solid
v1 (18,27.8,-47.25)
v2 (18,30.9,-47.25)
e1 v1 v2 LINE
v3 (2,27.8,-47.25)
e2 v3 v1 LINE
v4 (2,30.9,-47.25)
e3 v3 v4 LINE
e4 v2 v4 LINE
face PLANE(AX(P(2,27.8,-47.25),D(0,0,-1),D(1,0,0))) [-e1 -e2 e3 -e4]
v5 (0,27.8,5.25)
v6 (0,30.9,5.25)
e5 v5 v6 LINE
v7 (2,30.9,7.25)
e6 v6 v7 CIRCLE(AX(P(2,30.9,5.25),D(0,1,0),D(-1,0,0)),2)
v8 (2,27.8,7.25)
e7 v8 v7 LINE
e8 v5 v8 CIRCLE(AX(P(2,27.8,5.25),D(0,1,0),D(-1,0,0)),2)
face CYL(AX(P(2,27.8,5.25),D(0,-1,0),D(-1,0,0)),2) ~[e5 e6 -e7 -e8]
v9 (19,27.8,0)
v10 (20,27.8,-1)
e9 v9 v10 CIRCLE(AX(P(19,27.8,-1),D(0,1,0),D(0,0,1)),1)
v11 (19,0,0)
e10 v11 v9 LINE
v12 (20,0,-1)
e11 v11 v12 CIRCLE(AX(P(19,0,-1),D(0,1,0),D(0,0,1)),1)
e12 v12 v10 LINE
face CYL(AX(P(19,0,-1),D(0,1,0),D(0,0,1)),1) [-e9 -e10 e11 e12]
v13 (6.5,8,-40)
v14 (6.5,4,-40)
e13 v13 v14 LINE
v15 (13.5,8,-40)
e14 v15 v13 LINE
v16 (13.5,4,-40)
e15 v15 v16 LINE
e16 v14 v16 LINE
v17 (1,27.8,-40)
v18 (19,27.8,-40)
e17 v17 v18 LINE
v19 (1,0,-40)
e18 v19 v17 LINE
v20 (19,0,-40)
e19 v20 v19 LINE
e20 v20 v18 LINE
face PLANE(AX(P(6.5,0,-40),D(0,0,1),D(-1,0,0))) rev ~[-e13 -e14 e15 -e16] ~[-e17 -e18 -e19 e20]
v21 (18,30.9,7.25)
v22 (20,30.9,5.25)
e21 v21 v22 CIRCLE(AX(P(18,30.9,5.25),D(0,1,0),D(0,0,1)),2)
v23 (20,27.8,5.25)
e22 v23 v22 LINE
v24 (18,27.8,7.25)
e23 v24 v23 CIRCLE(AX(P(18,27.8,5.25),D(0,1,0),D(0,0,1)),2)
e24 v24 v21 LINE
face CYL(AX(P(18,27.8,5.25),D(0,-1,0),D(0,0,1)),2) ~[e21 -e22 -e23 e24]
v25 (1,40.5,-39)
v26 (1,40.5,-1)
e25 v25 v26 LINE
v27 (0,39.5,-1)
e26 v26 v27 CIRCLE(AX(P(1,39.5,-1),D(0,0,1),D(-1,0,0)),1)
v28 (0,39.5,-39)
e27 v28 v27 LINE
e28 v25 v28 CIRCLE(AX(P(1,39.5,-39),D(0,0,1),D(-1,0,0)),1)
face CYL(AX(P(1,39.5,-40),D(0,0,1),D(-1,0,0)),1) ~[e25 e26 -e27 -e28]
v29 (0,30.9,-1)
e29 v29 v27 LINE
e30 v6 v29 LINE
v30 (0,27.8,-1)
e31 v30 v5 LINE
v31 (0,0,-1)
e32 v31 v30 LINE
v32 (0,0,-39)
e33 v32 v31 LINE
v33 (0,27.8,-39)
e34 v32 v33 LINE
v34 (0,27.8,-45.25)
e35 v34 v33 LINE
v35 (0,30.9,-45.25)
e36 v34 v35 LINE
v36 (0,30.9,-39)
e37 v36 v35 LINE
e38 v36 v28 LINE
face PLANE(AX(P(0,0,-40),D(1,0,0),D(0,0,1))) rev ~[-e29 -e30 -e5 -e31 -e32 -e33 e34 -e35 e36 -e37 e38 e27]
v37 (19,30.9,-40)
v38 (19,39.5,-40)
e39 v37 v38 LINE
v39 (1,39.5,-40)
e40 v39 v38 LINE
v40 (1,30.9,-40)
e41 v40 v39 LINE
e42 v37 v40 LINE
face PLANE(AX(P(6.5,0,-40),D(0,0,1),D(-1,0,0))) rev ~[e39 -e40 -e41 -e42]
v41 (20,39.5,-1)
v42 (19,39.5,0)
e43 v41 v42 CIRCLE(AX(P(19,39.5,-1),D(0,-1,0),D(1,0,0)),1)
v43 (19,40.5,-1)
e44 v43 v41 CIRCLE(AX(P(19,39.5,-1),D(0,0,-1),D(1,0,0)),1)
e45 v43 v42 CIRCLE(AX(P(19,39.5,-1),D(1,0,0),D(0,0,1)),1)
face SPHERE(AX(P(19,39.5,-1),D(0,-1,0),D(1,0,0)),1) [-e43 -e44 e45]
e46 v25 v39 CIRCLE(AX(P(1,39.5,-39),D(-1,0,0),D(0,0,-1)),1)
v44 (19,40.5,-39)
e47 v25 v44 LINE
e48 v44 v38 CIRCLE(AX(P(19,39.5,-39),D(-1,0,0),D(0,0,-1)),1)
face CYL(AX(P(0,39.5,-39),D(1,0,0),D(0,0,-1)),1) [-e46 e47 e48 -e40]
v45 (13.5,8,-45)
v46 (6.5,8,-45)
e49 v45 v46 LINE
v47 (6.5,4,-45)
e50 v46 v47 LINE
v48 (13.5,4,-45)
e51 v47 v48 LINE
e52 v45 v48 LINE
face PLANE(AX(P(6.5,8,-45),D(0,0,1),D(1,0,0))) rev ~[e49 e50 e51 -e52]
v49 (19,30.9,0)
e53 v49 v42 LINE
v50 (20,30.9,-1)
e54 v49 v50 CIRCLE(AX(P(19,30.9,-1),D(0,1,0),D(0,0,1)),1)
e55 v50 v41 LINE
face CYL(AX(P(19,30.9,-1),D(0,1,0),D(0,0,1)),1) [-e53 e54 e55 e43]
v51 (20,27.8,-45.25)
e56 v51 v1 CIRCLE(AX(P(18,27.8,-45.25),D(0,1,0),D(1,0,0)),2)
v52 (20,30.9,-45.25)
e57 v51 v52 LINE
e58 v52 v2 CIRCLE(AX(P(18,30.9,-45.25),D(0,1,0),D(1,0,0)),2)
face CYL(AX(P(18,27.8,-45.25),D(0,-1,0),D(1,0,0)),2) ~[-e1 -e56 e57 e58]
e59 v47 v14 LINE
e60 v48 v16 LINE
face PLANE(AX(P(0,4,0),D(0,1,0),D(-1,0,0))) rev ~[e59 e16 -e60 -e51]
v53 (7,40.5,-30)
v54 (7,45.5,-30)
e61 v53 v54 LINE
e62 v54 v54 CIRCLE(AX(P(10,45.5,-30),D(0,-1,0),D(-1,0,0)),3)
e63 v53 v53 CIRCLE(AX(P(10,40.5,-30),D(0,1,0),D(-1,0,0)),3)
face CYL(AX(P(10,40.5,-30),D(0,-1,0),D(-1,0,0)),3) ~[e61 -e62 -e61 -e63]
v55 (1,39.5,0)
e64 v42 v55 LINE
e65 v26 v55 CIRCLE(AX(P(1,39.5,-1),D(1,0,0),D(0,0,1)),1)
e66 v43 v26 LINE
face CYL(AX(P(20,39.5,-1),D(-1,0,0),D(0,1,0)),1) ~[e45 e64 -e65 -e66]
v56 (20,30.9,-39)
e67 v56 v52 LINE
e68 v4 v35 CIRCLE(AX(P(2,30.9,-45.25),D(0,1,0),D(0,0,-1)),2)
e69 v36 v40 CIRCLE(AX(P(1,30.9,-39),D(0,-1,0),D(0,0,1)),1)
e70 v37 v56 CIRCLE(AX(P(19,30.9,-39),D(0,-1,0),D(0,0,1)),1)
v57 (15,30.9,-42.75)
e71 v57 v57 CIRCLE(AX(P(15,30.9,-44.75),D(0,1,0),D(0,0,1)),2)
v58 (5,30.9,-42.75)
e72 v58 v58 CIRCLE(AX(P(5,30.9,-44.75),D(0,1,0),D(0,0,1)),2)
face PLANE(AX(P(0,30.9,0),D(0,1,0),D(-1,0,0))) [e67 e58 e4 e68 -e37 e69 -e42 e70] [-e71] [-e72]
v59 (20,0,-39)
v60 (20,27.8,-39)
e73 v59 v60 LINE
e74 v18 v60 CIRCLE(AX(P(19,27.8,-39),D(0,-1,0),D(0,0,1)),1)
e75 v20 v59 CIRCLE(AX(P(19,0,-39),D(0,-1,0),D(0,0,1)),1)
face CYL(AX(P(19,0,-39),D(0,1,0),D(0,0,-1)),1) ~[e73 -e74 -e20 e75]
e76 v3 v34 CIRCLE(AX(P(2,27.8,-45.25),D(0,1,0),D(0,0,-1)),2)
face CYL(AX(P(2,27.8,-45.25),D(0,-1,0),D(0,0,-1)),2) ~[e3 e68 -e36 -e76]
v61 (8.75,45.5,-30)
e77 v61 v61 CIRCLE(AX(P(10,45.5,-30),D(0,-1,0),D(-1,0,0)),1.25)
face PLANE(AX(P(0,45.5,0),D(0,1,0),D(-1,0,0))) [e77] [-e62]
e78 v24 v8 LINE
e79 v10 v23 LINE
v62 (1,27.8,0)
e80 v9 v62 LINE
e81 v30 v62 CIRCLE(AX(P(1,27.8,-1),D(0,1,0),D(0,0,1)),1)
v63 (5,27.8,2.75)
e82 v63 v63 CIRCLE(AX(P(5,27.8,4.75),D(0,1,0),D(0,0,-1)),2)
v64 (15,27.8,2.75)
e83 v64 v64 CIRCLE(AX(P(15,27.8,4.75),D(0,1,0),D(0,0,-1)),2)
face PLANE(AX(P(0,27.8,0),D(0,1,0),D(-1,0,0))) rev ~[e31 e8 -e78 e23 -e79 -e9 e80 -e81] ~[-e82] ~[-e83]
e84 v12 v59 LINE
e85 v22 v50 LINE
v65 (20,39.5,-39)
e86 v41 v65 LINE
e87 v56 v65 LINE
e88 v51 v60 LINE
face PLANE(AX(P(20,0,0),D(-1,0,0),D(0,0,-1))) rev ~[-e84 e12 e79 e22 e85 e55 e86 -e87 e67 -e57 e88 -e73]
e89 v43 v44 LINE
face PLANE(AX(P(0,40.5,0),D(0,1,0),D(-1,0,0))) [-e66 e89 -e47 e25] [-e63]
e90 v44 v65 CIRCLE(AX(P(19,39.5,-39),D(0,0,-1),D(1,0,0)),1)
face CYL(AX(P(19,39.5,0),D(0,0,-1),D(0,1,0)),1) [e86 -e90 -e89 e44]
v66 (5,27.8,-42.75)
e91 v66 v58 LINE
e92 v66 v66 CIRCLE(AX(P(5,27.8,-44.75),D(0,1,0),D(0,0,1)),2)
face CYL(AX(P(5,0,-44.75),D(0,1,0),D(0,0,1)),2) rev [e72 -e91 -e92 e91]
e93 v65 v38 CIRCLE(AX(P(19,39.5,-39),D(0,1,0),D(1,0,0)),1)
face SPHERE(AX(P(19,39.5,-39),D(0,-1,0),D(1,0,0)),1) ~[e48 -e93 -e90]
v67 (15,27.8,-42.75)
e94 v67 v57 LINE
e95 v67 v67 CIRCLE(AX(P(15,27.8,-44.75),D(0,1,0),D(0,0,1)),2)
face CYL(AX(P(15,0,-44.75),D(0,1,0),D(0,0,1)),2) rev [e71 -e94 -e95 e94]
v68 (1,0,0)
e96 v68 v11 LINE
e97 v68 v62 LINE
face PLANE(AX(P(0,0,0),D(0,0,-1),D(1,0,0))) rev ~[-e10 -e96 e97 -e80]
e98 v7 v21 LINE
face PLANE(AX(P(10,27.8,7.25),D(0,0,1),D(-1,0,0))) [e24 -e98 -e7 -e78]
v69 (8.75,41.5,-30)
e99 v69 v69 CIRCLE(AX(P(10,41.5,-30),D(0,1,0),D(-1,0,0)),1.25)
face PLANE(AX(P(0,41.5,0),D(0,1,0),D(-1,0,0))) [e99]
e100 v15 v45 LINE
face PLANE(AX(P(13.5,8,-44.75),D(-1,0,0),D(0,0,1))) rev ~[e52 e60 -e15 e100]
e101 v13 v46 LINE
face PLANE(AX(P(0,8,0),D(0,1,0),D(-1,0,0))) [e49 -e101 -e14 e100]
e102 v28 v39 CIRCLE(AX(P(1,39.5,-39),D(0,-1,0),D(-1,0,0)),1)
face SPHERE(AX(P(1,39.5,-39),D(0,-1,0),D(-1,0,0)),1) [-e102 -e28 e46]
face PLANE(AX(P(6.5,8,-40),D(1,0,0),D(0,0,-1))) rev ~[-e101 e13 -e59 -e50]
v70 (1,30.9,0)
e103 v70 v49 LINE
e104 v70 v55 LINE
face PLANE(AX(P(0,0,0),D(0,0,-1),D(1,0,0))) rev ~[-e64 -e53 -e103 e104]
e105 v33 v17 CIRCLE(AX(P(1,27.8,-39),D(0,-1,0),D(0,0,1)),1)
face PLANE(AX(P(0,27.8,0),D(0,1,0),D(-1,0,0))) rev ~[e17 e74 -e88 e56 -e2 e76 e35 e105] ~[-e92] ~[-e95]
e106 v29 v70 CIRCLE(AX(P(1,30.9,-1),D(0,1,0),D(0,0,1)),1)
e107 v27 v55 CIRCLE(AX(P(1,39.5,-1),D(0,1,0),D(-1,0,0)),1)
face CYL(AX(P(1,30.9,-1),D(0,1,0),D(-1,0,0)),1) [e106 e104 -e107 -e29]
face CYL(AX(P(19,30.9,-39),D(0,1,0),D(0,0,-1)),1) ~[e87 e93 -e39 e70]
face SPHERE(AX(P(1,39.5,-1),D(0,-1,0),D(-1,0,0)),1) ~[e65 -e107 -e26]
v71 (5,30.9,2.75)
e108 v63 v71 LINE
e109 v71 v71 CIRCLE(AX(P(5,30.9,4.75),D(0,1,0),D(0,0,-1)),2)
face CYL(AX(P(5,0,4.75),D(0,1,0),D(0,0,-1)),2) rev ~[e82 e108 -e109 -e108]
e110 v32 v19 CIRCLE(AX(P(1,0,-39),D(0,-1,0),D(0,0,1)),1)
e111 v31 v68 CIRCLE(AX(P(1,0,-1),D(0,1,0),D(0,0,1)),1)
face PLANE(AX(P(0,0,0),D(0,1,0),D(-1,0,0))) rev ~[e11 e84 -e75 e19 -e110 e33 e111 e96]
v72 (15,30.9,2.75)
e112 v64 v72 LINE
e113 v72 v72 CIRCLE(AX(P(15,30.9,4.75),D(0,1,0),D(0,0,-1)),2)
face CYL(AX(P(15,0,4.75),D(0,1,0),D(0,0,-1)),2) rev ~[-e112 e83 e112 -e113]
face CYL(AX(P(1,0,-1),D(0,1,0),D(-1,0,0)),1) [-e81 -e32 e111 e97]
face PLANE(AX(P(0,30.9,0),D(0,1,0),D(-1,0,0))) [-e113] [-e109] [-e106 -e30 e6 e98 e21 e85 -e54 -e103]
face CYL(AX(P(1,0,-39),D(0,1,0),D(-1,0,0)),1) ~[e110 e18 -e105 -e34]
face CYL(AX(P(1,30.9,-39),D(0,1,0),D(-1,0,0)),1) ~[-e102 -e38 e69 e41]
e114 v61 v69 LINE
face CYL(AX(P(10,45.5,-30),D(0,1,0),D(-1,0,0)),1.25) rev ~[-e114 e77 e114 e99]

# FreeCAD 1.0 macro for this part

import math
import FreeCAD as App
import Part
import Sketcher
from FreeCAD import Vector
Q = App.Units.Quantity


def edges_at(feature, points):
    """Names of the edges that pass closest to the given points."""
    edges = feature.Shape.Edges
    near = lambda p: min(range(len(edges)), key=lambda i: edges[i].distToShape(Part.Vertex(*p))[0])
    return sorted({f"Edge{near(p) + 1}" for p in points})

doc = App.newDocument("Part")
body = doc.addObject("PartDesign::Body", "Body")

# Sketch on XZ plane
sketch1 = doc.addObject("Sketcher::SketchObject", "Sketch")
body.addObject(sketch1)
sketch1.AttachmentSupport = (doc.XZ_Plane, [""])
sketch1.MapMode = "FlatFace"
sketch1.addGeometry(Part.LineSegment(Vector(0, -40, 0), Vector(0, 0, 0)), False)
sketch1.addGeometry(Part.LineSegment(Vector(0, 0, 0), Vector(20, 0, 0)), False)
sketch1.addGeometry(Part.LineSegment(Vector(20, 0, 0), Vector(20, -40, 0)), False)
sketch1.addGeometry(Part.LineSegment(Vector(20, -40, 0), Vector(0, -40, 0)), False)
sketch1.addConstraint(Sketcher.Constraint("Coincident", 0, 2, 1, 1))
sketch1.addConstraint(Sketcher.Constraint("Coincident", 1, 2, 2, 1))
sketch1.addConstraint(Sketcher.Constraint("Coincident", 2, 2, 3, 1))
sketch1.addConstraint(Sketcher.Constraint("Coincident", 3, 2, 0, 1))
sketch1.addConstraint(Sketcher.Constraint("Vertical", 0))
sketch1.addConstraint(Sketcher.Constraint("Horizontal", 1))
sketch1.addConstraint(Sketcher.Constraint("Vertical", 2))
sketch1.addConstraint(Sketcher.Constraint("Horizontal", 3))
sketch1.addConstraint(Sketcher.Constraint("Coincident", 0, 2, -1, 1))
sketch1.addConstraint(Sketcher.Constraint("DistanceX", 1, 1, 1, 2, Q("20 mm")))
sketch1.addConstraint(Sketcher.Constraint("DistanceY", 0, 1, 0, 2, Q("40 mm")))
pad1 = doc.addObject("PartDesign::Pad", "Pad")
body.addObject(pad1)
pad1.Profile = sketch1
pad1.Length = 40.5
pad1.Reversed = True

# Sketch on XZ plane
sketch2 = doc.addObject("Sketcher::SketchObject", "Sketch001")
body.addObject(sketch2)
sketch2.AttachmentSupport = (doc.XZ_Plane, [""])
sketch2.MapMode = "FlatFace"
sketch2.AttachmentOffset = App.Placement(Vector(0, 0, -27.8), App.Rotation())
sketch2.addGeometry(Part.LineSegment(Vector(0, 0, 0), Vector(0, 5.25, 0)), False)
sketch2.addGeometry(Part.ArcOfCircle(Part.Circle(Vector(2, 5.25, 0), Vector(0, 0, 1), 2), math.radians(90), math.radians(180)), False)
sketch2.addGeometry(Part.LineSegment(Vector(2, 7.25, 0), Vector(18, 7.25, 0)), False)
sketch2.addGeometry(Part.ArcOfCircle(Part.Circle(Vector(18, 5.25, 0), Vector(0, 0, 1), 2), math.radians(0), math.radians(90)), False)
sketch2.addGeometry(Part.LineSegment(Vector(20, 5.25, 0), Vector(20, 0, 0)), False)
sketch2.addGeometry(Part.LineSegment(Vector(20, 0, 0), Vector(0, 0, 0)), False)
sketch2.addGeometry(Part.LineSegment(Vector(0, -40, 0), Vector(20, -40, 0)), False)
sketch2.addGeometry(Part.LineSegment(Vector(20, -40, 0), Vector(20, -45.25, 0)), False)
sketch2.addGeometry(Part.ArcOfCircle(Part.Circle(Vector(18, -45.25, 0), Vector(0, 0, 1), 2), math.radians(-90), math.radians(0)), False)
sketch2.addGeometry(Part.LineSegment(Vector(18, -47.25, 0), Vector(2, -47.25, 0)), False)
sketch2.addGeometry(Part.ArcOfCircle(Part.Circle(Vector(2, -45.25, 0), Vector(0, 0, 1), 2), math.radians(180), math.radians(270)), False)
sketch2.addGeometry(Part.LineSegment(Vector(0, -45.25, 0), Vector(0, -40, 0)), False)
sketch2.addConstraint(Sketcher.Constraint("Tangent", 0, 2, 1, 2))
sketch2.addConstraint(Sketcher.Constraint("Tangent", 1, 1, 2, 1))
sketch2.addConstraint(Sketcher.Constraint("Tangent", 2, 2, 3, 2))
sketch2.addConstraint(Sketcher.Constraint("Tangent", 3, 1, 4, 1))
sketch2.addConstraint(Sketcher.Constraint("Coincident", 4, 2, 5, 1))
sketch2.addConstraint(Sketcher.Constraint("Coincident", 5, 2, 0, 1))
sketch2.addConstraint(Sketcher.Constraint("Coincident", 6, 2, 7, 1))
sketch2.addConstraint(Sketcher.Constraint("Tangent", 7, 2, 8, 2))
sketch2.addConstraint(Sketcher.Constraint("Tangent", 8, 1, 9, 1))
sketch2.addConstraint(Sketcher.Constraint("Tangent", 9, 2, 10, 2))
sketch2.addConstraint(Sketcher.Constraint("Tangent", 10, 1, 11, 1))
sketch2.addConstraint(Sketcher.Constraint("Coincident", 11, 2, 6, 1))
sketch2.addConstraint(Sketcher.Constraint("Vertical", 0))
sketch2.addConstraint(Sketcher.Constraint("Horizontal", 2))
sketch2.addConstraint(Sketcher.Constraint("Vertical", 4))
sketch2.addConstraint(Sketcher.Constraint("Horizontal", 5))
sketch2.addConstraint(Sketcher.Constraint("Horizontal", 6))
sketch2.addConstraint(Sketcher.Constraint("Vertical", 7))
sketch2.addConstraint(Sketcher.Constraint("Horizontal", 9))
sketch2.addConstraint(Sketcher.Constraint("Vertical", 11))
sketch2.addConstraint(Sketcher.Constraint("Coincident", 5, 2, -1, 1))
sketch2.addConstraint(Sketcher.Constraint("Equal", 1, 3))
sketch2.addConstraint(Sketcher.Constraint("Equal", 3, 8))
sketch2.addConstraint(Sketcher.Constraint("Equal", 8, 10))
sketch2.addConstraint(Sketcher.Constraint("PointOnObject", 10, 1, -2))
sketch2.addConstraint(Sketcher.Constraint("Vertical", 3, 3, 8, 3))
sketch2.addConstraint(Sketcher.Constraint("Equal", 4, 7))
sketch2.addConstraint(Sketcher.Constraint("Radius", 1, Q("2 mm")))
sketch2.addConstraint(Sketcher.Constraint("DistanceX", 5, 2, 5, 1, Q("20 mm")))
sketch2.addConstraint(Sketcher.Constraint("DistanceY", 6, 2, -1, 1, Q("40 mm")))
sketch2.addConstraint(Sketcher.Constraint("DistanceY", 0, 1, 0, 2, Q("5.25 mm")))
pad2 = doc.addObject("PartDesign::Pad", "Pad001")
body.addObject(pad2)
pad2.Profile = sketch2
pad2.Length = 3.1
pad2.Reversed = True

# Sketch on XZ plane
sketch3 = doc.addObject("Sketcher::SketchObject", "Sketch002")
body.addObject(sketch3)
sketch3.AttachmentSupport = (doc.XZ_Plane, [""])
sketch3.MapMode = "FlatFace"
sketch3.addGeometry(Part.Circle(Vector(5, 4.75, 0), Vector(0, 0, 1), 2), False)
sketch3.addGeometry(Part.Circle(Vector(15, 4.75, 0), Vector(0, 0, 1), 2), False)
sketch3.addConstraint(Sketcher.Constraint("Equal", 0, 1))
sketch3.addConstraint(Sketcher.Constraint("Horizontal", 0, 3, 1, 3))
sketch3.addConstraint(Sketcher.Constraint("Diameter", 0, Q("4 mm")))
sketch3.addConstraint(Sketcher.Constraint("DistanceX", -1, 1, 0, 3, Q("5 mm")))
sketch3.addConstraint(Sketcher.Constraint("DistanceX", -1, 1, 1, 3, Q("15 mm")))
sketch3.addConstraint(Sketcher.Constraint("DistanceY", -1, 1, 0, 3, Q("4.75 mm")))
doc.recompute()
hole = doc.addObject("PartDesign::Hole", "Hole")
body.addObject(hole)
hole.Profile = sketch3
hole.ThreadType = "None"
hole.Diameter = 4
hole.DepthType = "ThroughAll"
doc.recompute()

datumplane = doc.addObject("PartDesign::Plane", "DatumPlane")
body.addObject(datumplane)
datumplane.AttachmentSupport = (doc.XY_Plane, [""])
datumplane.MapMode = "FlatFace"
datumplane.AttachmentOffset = App.Placement(Vector(0, 0, -20), App.Rotation())
mirrored = doc.addObject("PartDesign::Mirrored", "Mirrored")
body.addObject(mirrored)
mirrored.Originals = [hole]
mirrored.MirrorPlane = (datumplane, [""])
body.Tip = mirrored

# Sketch on XZ plane
sketch4 = doc.addObject("Sketcher::SketchObject", "Sketch003")
body.addObject(sketch4)
sketch4.AttachmentSupport = (doc.XZ_Plane, [""])
sketch4.MapMode = "FlatFace"
sketch4.AttachmentOffset = App.Placement(Vector(0, 0, -40.5), App.Rotation())
sketch4.addGeometry(Part.Circle(Vector(10, -30, 0), Vector(0, 0, 1), 3), False)
sketch4.addConstraint(Sketcher.Constraint("Diameter", 0, Q("6 mm")))
sketch4.addConstraint(Sketcher.Constraint("DistanceX", -1, 1, 0, 3, Q("10 mm")))
sketch4.addConstraint(Sketcher.Constraint("DistanceY", 0, 3, -1, 1, Q("30 mm")))
pad3 = doc.addObject("PartDesign::Pad", "Pad002")
body.addObject(pad3)
pad3.Profile = sketch4
pad3.Length = 5
pad3.Reversed = True

# Sketch on XZ plane
sketch5 = doc.addObject("Sketcher::SketchObject", "Sketch004")
body.addObject(sketch5)
sketch5.AttachmentSupport = (doc.XZ_Plane, [""])
sketch5.MapMode = "FlatFace"
sketch5.AttachmentOffset = App.Placement(Vector(0, 0, -8), App.Rotation())
sketch5.addGeometry(Part.LineSegment(Vector(6.5, -40, 0), Vector(13.5, -40, 0)), False)
sketch5.addGeometry(Part.LineSegment(Vector(13.5, -40, 0), Vector(13.5, -45, 0)), False)
sketch5.addGeometry(Part.LineSegment(Vector(13.5, -45, 0), Vector(6.5, -45, 0)), False)
sketch5.addGeometry(Part.LineSegment(Vector(6.5, -45, 0), Vector(6.5, -40, 0)), False)
sketch5.addConstraint(Sketcher.Constraint("Coincident", 0, 2, 1, 1))
sketch5.addConstraint(Sketcher.Constraint("Coincident", 1, 2, 2, 1))
sketch5.addConstraint(Sketcher.Constraint("Coincident", 2, 2, 3, 1))
sketch5.addConstraint(Sketcher.Constraint("Coincident", 3, 2, 0, 1))
sketch5.addConstraint(Sketcher.Constraint("Horizontal", 0))
sketch5.addConstraint(Sketcher.Constraint("Vertical", 1))
sketch5.addConstraint(Sketcher.Constraint("Horizontal", 2))
sketch5.addConstraint(Sketcher.Constraint("Vertical", 3))
sketch5.addConstraint(Sketcher.Constraint("DistanceX", 0, 1, 0, 2, Q("7 mm")))
sketch5.addConstraint(Sketcher.Constraint("DistanceY", 1, 2, 1, 1, Q("5 mm")))
sketch5.addConstraint(Sketcher.Constraint("DistanceY", 0, 2, -1, 1, Q("40 mm")))
sketch5.addConstraint(Sketcher.Constraint("DistanceX", -1, 1, 0, 2, Q("13.5 mm")))
pad4 = doc.addObject("PartDesign::Pad", "Pad003")
body.addObject(pad4)
pad4.Profile = sketch5
pad4.Length = 4
doc.recompute()

fillet = doc.addObject("PartDesign::Fillet", "Fillet")
body.addObject(fillet)
fillet.Base = (pad4, edges_at(pad4, [
    (0, 35.7, 0),
    (0, 13.9, 0),
    (20, 13.9, 0),
    (20, 35.7, 0),
    (20, 13.9, -40),
    (20, 35.7, -40),
    (0, 13.9, -40),
    (0, 35.7, -40),
    (20, 40.5, -20),
    (0, 40.5, -20),
    (10, 40.5, 0),
    (10, 40.5, -40),
]))
fillet.Radius = 1

# Sketch on XZ plane
sketch6 = doc.addObject("Sketcher::SketchObject", "Sketch005")
body.addObject(sketch6)
sketch6.AttachmentSupport = (doc.XZ_Plane, [""])
sketch6.MapMode = "FlatFace"
sketch6.AttachmentOffset = App.Placement(Vector(0, 0, -45.5), App.Rotation())
sketch6.addGeometry(Part.Circle(Vector(10, -30, 0), Vector(0, 0, 1), 1.25), False)
sketch6.addConstraint(Sketcher.Constraint("Diameter", 0, Q("2.5 mm")))
sketch6.addConstraint(Sketcher.Constraint("DistanceX", -1, 1, 0, 3, Q("10 mm")))
sketch6.addConstraint(Sketcher.Constraint("DistanceY", 0, 3, -1, 1, Q("30 mm")))
pocket1 = doc.addObject("PartDesign::Pocket", "Pocket")
body.addObject(pocket1)
pocket1.Profile = sketch6
pocket1.Length = 4
pocket1.Reversed = True

doc.recompute()
